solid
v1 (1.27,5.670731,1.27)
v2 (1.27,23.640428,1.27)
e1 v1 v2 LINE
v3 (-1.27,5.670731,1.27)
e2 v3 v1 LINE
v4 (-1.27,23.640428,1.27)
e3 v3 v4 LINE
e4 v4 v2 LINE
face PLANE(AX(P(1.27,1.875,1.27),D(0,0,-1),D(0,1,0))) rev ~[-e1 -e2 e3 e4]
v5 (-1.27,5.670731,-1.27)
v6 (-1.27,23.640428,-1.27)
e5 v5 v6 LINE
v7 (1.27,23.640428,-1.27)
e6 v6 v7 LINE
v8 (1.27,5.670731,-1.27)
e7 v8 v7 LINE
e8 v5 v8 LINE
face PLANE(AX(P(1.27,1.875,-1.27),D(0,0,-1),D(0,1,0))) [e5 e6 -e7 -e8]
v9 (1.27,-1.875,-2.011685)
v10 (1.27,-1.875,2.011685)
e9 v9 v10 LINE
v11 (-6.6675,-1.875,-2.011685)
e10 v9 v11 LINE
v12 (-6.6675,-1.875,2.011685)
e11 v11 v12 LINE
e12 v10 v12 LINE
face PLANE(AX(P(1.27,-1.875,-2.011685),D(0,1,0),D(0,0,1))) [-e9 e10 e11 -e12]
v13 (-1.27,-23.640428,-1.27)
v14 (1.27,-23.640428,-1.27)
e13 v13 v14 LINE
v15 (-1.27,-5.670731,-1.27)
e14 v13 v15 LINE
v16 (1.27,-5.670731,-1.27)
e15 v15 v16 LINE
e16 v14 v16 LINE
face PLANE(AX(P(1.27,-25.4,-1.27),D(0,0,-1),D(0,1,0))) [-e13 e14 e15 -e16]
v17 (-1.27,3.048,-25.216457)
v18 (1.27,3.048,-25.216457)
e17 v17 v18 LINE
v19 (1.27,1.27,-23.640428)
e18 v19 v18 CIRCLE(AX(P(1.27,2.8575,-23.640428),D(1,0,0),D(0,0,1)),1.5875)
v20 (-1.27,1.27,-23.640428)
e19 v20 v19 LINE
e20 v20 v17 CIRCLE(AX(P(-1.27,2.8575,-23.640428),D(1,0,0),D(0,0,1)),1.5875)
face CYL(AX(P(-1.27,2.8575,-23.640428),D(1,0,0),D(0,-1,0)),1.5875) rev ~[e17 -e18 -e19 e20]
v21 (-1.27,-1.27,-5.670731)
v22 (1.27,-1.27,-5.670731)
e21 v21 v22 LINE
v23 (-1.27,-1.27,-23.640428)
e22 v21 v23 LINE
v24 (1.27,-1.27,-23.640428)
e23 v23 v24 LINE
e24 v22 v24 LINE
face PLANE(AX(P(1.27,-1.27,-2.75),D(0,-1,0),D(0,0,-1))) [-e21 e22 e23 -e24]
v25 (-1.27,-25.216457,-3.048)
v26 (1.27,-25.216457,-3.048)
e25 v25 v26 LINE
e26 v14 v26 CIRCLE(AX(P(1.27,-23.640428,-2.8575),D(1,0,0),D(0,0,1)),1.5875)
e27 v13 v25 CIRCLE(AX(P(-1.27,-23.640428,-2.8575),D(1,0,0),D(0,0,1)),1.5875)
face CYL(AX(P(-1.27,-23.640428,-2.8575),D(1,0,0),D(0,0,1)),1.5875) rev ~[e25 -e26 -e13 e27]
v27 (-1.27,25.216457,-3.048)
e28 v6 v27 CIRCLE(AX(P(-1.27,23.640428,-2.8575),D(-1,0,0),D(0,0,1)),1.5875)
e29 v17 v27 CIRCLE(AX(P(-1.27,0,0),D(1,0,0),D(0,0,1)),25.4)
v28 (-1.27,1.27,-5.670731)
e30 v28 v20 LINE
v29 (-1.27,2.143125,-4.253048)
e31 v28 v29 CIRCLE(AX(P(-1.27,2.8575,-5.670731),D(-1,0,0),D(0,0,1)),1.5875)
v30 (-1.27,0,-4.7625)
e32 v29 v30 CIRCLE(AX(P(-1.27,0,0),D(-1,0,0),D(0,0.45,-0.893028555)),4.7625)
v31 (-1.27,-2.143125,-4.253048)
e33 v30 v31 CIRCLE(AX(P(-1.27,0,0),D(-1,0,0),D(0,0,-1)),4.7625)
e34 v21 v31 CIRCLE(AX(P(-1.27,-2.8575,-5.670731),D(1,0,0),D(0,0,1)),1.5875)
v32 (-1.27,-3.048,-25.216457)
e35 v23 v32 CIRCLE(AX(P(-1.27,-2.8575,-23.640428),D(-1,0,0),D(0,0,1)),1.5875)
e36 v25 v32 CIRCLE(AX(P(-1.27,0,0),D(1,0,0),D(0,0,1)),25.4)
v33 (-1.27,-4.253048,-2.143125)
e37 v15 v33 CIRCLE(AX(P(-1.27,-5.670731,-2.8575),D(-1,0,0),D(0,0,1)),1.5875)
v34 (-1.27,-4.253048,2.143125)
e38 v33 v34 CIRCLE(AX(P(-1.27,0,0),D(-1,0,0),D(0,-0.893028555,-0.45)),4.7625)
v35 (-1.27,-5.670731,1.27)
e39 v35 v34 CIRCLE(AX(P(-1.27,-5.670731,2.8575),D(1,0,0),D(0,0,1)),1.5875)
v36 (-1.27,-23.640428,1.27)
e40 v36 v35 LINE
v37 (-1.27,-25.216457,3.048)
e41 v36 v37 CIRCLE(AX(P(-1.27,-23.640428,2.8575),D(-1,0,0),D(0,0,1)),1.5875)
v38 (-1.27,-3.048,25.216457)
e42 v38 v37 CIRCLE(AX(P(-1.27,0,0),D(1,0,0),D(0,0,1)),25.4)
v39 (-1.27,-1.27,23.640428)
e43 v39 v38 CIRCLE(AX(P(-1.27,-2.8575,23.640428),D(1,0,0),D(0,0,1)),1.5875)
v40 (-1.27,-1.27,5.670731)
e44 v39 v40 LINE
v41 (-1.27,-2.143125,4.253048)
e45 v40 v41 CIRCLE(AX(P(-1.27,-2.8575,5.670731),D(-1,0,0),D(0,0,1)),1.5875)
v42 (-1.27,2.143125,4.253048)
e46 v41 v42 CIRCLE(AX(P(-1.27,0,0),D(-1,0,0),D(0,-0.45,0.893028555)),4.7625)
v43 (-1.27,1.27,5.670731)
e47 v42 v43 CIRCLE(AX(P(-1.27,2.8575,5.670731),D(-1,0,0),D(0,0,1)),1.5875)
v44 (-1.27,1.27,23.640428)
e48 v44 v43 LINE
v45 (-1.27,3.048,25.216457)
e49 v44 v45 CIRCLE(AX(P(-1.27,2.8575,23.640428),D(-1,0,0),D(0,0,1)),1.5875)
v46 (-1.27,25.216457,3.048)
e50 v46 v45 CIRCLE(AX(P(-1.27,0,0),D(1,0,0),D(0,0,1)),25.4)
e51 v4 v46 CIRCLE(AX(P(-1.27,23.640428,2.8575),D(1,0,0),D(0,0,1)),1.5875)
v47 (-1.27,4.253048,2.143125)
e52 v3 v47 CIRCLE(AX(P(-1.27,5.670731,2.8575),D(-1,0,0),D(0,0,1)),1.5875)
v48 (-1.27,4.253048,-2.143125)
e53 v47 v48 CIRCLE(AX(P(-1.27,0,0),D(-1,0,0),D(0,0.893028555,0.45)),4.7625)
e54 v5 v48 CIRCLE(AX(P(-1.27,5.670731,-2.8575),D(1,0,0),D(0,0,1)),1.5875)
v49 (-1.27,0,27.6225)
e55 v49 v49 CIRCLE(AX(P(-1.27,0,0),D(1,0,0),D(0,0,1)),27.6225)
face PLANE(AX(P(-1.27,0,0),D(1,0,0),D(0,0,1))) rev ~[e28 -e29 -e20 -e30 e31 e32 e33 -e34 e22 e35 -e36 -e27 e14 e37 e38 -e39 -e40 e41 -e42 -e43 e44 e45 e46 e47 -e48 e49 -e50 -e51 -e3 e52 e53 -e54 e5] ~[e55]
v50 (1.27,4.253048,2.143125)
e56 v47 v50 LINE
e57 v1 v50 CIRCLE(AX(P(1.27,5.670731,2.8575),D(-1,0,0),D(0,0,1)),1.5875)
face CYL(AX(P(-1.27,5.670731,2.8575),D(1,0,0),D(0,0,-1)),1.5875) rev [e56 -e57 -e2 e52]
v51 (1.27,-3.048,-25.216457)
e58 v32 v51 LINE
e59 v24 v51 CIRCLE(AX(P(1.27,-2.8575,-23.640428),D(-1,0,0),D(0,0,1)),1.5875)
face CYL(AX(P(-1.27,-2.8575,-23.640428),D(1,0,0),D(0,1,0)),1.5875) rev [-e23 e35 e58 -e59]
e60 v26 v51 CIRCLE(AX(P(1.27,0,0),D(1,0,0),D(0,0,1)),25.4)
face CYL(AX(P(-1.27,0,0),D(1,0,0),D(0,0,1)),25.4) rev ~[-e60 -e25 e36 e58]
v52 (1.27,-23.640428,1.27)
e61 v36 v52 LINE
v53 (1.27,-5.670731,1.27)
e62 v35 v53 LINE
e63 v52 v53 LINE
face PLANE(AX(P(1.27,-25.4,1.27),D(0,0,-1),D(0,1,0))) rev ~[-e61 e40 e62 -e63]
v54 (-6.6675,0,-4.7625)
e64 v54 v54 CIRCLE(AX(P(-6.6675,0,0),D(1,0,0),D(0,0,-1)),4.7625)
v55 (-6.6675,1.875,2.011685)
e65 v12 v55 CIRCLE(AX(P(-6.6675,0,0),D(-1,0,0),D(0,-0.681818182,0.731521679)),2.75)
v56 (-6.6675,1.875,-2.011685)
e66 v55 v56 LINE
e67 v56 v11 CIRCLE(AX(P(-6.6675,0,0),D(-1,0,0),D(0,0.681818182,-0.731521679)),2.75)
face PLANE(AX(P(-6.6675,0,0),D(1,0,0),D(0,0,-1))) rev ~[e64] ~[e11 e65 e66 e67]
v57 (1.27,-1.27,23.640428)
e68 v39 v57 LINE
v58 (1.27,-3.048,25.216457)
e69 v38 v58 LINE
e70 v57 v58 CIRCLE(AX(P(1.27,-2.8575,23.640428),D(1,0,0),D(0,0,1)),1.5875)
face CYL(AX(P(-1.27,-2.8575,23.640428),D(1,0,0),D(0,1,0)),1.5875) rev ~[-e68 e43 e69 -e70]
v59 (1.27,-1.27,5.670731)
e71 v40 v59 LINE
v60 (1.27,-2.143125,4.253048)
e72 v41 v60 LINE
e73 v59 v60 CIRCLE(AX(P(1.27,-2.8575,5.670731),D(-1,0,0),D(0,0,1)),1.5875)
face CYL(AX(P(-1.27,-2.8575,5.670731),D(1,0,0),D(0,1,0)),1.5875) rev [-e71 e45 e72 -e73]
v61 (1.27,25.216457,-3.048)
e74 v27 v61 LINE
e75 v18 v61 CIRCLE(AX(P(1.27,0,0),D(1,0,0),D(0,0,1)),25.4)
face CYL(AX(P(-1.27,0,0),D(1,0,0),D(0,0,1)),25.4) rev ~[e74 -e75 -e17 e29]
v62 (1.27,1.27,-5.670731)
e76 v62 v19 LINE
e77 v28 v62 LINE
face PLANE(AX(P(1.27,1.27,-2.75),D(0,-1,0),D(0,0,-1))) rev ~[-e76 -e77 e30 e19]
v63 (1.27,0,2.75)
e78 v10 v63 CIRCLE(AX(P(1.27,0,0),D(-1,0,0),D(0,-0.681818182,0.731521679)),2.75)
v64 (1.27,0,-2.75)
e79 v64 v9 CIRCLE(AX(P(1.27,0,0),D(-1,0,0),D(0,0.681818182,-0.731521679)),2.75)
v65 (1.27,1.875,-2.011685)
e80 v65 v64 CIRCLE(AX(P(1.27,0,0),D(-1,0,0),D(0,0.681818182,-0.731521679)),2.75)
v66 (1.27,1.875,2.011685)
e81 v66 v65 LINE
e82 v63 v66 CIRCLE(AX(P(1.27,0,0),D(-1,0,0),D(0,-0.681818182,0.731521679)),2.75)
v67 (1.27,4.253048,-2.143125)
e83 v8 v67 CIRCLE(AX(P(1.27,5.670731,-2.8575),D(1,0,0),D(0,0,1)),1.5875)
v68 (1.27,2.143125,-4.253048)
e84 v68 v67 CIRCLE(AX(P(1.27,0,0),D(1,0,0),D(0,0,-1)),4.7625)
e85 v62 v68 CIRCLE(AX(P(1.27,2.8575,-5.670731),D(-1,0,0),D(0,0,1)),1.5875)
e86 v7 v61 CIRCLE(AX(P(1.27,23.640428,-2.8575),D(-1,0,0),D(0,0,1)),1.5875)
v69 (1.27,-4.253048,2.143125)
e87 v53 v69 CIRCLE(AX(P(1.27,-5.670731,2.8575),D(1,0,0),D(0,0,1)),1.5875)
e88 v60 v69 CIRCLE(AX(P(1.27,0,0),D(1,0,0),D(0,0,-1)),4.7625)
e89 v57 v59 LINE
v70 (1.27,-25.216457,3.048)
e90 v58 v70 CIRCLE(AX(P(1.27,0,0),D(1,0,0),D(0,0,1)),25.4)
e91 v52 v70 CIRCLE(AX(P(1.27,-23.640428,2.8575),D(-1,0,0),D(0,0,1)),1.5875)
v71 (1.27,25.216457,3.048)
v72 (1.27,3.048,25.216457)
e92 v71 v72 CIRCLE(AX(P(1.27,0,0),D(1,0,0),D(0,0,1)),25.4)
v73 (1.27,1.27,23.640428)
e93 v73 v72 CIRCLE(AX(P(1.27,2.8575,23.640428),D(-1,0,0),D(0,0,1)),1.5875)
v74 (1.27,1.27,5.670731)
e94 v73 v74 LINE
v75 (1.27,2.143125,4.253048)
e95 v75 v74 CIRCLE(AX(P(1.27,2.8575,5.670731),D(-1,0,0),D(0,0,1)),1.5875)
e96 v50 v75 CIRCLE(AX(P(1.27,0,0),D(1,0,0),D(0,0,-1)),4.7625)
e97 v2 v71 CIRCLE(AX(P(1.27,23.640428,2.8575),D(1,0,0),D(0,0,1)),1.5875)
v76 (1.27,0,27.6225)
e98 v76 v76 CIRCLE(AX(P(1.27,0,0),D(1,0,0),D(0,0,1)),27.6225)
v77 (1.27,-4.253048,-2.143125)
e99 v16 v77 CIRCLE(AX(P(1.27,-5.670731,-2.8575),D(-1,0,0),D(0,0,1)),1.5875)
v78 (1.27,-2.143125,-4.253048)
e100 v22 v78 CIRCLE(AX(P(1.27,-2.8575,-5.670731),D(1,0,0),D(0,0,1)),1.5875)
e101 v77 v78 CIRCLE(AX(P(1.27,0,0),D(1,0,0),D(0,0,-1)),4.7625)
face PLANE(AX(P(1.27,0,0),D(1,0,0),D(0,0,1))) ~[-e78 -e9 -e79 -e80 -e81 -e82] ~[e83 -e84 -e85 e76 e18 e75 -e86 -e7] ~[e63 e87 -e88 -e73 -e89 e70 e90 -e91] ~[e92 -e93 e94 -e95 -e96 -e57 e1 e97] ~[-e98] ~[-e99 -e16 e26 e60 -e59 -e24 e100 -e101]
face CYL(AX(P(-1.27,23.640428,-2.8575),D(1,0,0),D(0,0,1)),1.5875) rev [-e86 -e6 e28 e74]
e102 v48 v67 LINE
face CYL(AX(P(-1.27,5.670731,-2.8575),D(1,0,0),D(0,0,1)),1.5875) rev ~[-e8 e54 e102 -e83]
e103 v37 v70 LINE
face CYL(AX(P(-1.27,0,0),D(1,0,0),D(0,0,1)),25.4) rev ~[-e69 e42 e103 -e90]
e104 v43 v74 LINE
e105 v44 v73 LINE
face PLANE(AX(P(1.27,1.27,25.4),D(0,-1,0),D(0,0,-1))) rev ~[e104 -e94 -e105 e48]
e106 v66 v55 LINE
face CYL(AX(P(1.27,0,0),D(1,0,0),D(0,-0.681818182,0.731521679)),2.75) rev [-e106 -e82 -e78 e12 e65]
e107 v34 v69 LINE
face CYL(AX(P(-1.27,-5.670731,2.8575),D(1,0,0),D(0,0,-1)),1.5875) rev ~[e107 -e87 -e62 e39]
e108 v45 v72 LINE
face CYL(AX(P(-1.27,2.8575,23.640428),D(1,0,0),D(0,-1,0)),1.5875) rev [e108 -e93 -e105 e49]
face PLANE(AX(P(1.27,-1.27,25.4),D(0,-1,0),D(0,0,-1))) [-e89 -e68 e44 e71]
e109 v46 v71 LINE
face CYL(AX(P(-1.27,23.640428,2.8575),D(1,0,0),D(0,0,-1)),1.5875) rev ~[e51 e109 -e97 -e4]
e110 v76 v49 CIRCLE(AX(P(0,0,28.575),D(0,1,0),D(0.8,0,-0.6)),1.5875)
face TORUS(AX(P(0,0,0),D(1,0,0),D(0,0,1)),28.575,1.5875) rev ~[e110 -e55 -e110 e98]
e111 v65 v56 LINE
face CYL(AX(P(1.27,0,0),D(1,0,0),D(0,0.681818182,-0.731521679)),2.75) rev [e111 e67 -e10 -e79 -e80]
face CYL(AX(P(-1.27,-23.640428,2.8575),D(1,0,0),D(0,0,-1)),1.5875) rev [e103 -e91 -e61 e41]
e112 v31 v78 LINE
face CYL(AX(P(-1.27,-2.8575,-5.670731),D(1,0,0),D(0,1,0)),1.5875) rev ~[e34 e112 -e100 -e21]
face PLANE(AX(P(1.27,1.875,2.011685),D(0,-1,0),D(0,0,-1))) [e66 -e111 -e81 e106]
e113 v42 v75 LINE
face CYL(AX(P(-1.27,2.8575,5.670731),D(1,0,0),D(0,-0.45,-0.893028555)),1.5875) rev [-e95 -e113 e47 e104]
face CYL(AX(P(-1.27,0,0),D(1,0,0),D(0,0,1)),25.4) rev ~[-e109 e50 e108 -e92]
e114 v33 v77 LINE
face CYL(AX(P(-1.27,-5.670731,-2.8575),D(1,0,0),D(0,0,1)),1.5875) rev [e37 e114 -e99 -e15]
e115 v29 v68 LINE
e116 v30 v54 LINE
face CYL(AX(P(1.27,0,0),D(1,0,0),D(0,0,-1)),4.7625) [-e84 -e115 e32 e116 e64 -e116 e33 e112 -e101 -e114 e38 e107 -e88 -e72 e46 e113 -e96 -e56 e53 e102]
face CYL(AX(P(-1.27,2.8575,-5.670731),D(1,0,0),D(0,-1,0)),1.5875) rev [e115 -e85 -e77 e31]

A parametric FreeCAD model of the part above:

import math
import FreeCAD as App
import Part
import Sketcher

V = App.Vector
Q = App.Units.Quantity


def edges_at(feature, points):
    """Names of the edges that pass closest to the given points."""
    edges = feature.Shape.Edges
    near = lambda p: min(range(len(edges)), key=lambda i: edges[i].distToShape(Part.Vertex(*p))[0])
    return sorted({f"Edge{near(p) + 1}" for p in points})

doc = App.newDocument("Part")
body = doc.addObject("PartDesign::Body", "Body")

sketch1 = body.newObject("Sketcher::SketchObject", "Sketch")
sketch1.AttachmentSupport = (doc.getObject("XY_Plane"), [""])
sketch1.MapMode = "FlatFace"
sketch1.addGeometry(Part.LineSegment(V(-1.27, 25.4, 0), V(1.27, 25.4, 0)), False)
sketch1.addGeometry(Part.LineSegment(V(1.27, 25.4, 0), V(1.27, 27.6225, 0)), False)
sketch1.addGeometry(Part.ArcOfCircle(Part.Circle(V(0, 28.575, 0), V(0, 0, 1), 1.5875), math.radians(-143.130102), math.radians(-36.869898)), False)
sketch1.addGeometry(Part.LineSegment(V(-1.27, 27.6225, 0), V(-1.27, 25.4, 0)), False)
sketch1.addConstraint(Sketcher.Constraint("Coincident", 0, 2, 1, 1))
sketch1.addConstraint(Sketcher.Constraint("Coincident", 1, 2, 2, 2))
sketch1.addConstraint(Sketcher.Constraint("Coincident", 2, 1, 3, 1))
sketch1.addConstraint(Sketcher.Constraint("Coincident", 3, 2, 0, 1))
sketch1.addConstraint(Sketcher.Constraint("Horizontal", 0))
sketch1.addConstraint(Sketcher.Constraint("Vertical", 1))
sketch1.addConstraint(Sketcher.Constraint("Vertical", 3))
sketch1.addConstraint(Sketcher.Constraint("Symmetric", 1, 2, 2, 1, -2))
sketch1.addConstraint(Sketcher.Constraint("DistanceX", 0, 1, 0, 2, Q("0.1 in")))
sketch1.addConstraint(Sketcher.Constraint("DistanceY", -1, 1, 0, 2, Q("1 in")))
sketch1.addConstraint(Sketcher.Constraint("Radius", 2, Q("0.0625 in")))
sketch1.addConstraint(Sketcher.Constraint("DistanceY", 1, 1, 1, 2, Q("0.0875 in")))
revolution = body.newObject("PartDesign::Revolution", "Revolution")
revolution.Profile = sketch1
revolution.ReferenceAxis = (sketch1, ["H_Axis"])
revolution.Angle = 360
body2 = doc.addObject("PartDesign::Body", "Body001")

sketch2 = body2.newObject("Sketcher::SketchObject", "Sketch001")
sketch2.AttachmentSupport = (doc.getObject("YZ_Plane001"), [""])
sketch2.MapMode = "FlatFace"
sketch2.AttachmentOffset = App.Placement(V(0, 0, 0.05 * 25.4), App.Rotation())
sketch2.addGeometry(Part.Circle(V(0, 0, 0), V(0, 0, 1), 4.7625), False)
sketch2.addGeometry(Part.ArcOfCircle(Part.Circle(V(0, 0, 0), V(0, 0, 1), 2.75), math.radians(47.014114), math.radians(132.985886)), False)
sketch2.addGeometry(Part.LineSegment(V(1.875, 2.011685, 0), V(1.875, -2.011685, 0)), False)
sketch2.addGeometry(Part.ArcOfCircle(Part.Circle(V(0, 0, 0), V(0, 0, 1), 2.75), math.radians(-132.985886), math.radians(-47.014114)), False)
sketch2.addGeometry(Part.LineSegment(V(-1.875, -2.011685, 0), V(-1.875, 2.011685, 0)), False)
sketch2.addConstraint(Sketcher.Constraint("Coincident", 1, 1, 2, 1))
sketch2.addConstraint(Sketcher.Constraint("Coincident", 2, 2, 3, 2))
sketch2.addConstraint(Sketcher.Constraint("Coincident", 3, 1, 4, 1))
sketch2.addConstraint(Sketcher.Constraint("Coincident", 4, 2, 1, 2))
sketch2.addConstraint(Sketcher.Constraint("Vertical", 2))
sketch2.addConstraint(Sketcher.Constraint("Vertical", 4))
sketch2.addConstraint(Sketcher.Constraint("Coincident", 0, 3, -1, 1))
sketch2.addConstraint(Sketcher.Constraint("Coincident", 1, 3, -1, 1))
sketch2.addConstraint(Sketcher.Constraint("Coincident", 3, 3, -1, 1))
sketch2.addConstraint(Sketcher.Constraint("Equal", 1, 3))
sketch2.addConstraint(Sketcher.Constraint("Horizontal", 2, 2, 3, 1))
sketch2.addConstraint(Sketcher.Constraint("Diameter", 0, Q("0.375 in")))
sketch2.addConstraint(Sketcher.Constraint("Radius", 1, 2.75))
sketch2.addConstraint(Sketcher.Constraint("DistanceY", -1, 1, 1, 1, Q("0.0792002 in")))
pad1 = body2.newObject("PartDesign::Pad", "Pad")
pad1.Profile = sketch2
pad1.Length = Q("0.3125 in")
pad1.Reversed = True
body.AllowCompound = True
doc.recompute()

boolean = body.newObject("PartDesign::Boolean", "Boolean")
boolean.Type = "Fuse"
boolean.addObjects([body2])

sketch3 = body.newObject("Sketcher::SketchObject", "Sketch002")
sketch3.AttachmentSupport = (doc.getObject("YZ_Plane"), [""])
sketch3.MapMode = "FlatFace"
sketch3.AttachmentOffset = App.Placement(V(0, 0, 0.05 * 25.4), App.Rotation())
sketch3.addGeometry(Part.LineSegment(V(1.27, 25.4, 0), V(-1.27, 25.4, 0)), False)
sketch3.addGeometry(Part.LineSegment(V(-1.27, 25.4, 0), V(-1.27, 2.75, 0)), False)
sketch3.addGeometry(Part.LineSegment(V(-1.27, 2.75, 0), V(1.27, 2.75, 0)), False)
sketch3.addGeometry(Part.LineSegment(V(1.27, 2.75, 0), V(1.27, 25.4, 0)), False)
sketch3.addGeometry(Part.LineSegment(V(25.4, 1.27, 0), V(1.875, 1.27, 0)), False)
sketch3.addGeometry(Part.LineSegment(V(1.875, 1.27, 0), V(1.875, -1.27, 0)), False)
sketch3.addGeometry(Part.LineSegment(V(1.875, -1.27, 0), V(25.4, -1.27, 0)), False)
sketch3.addGeometry(Part.LineSegment(V(25.4, -1.27, 0), V(25.4, 1.27, 0)), False)
sketch3.addGeometry(Part.LineSegment(V(1.27, -2.75, 0), V(-1.27, -2.75, 0)), False)
sketch3.addGeometry(Part.LineSegment(V(-1.27, -2.75, 0), V(-1.27, -25.4, 0)), False)
sketch3.addGeometry(Part.LineSegment(V(-1.27, -25.4, 0), V(1.27, -25.4, 0)), False)
sketch3.addGeometry(Part.LineSegment(V(1.27, -25.4, 0), V(1.27, -2.75, 0)), False)
sketch3.addGeometry(Part.LineSegment(V(-1.875, 1.27, 0), V(-25.4, 1.27, 0)), False)
sketch3.addGeometry(Part.LineSegment(V(-25.4, 1.27, 0), V(-25.4, -1.27, 0)), False)
sketch3.addGeometry(Part.LineSegment(V(-25.4, -1.27, 0), V(-1.875, -1.27, 0)), False)
sketch3.addGeometry(Part.LineSegment(V(-1.875, -1.27, 0), V(-1.875, 1.27, 0)), False)
sketch3.addConstraint(Sketcher.Constraint("Coincident", 0, 2, 1, 1))
sketch3.addConstraint(Sketcher.Constraint("Coincident", 1, 2, 2, 1))
sketch3.addConstraint(Sketcher.Constraint("Coincident", 2, 2, 3, 1))
sketch3.addConstraint(Sketcher.Constraint("Coincident", 3, 2, 0, 1))
sketch3.addConstraint(Sketcher.Constraint("Coincident", 4, 2, 5, 1))
sketch3.addConstraint(Sketcher.Constraint("Coincident", 5, 2, 6, 1))
sketch3.addConstraint(Sketcher.Constraint("Coincident", 6, 2, 7, 1))
sketch3.addConstraint(Sketcher.Constraint("Coincident", 7, 2, 4, 1))
sketch3.addConstraint(Sketcher.Constraint("Coincident", 8, 2, 9, 1))
sketch3.addConstraint(Sketcher.Constraint("Coincident", 9, 2, 10, 1))
sketch3.addConstraint(Sketcher.Constraint("Coincident", 10, 2, 11, 1))
sketch3.addConstraint(Sketcher.Constraint("Coincident", 11, 2, 8, 1))
sketch3.addConstraint(Sketcher.Constraint("Coincident", 12, 2, 13, 1))
sketch3.addConstraint(Sketcher.Constraint("Coincident", 13, 2, 14, 1))
sketch3.addConstraint(Sketcher.Constraint("Coincident", 14, 2, 15, 1))
sketch3.addConstraint(Sketcher.Constraint("Coincident", 15, 2, 12, 1))
sketch3.addConstraint(Sketcher.Constraint("Horizontal", 0))
sketch3.addConstraint(Sketcher.Constraint("Vertical", 1))
sketch3.addConstraint(Sketcher.Constraint("Horizontal", 2))
sketch3.addConstraint(Sketcher.Constraint("Vertical", 3))
sketch3.addConstraint(Sketcher.Constraint("Horizontal", 4))
sketch3.addConstraint(Sketcher.Constraint("Vertical", 5))
sketch3.addConstraint(Sketcher.Constraint("Horizontal", 6))
sketch3.addConstraint(Sketcher.Constraint("Vertical", 7))
sketch3.addConstraint(Sketcher.Constraint("Horizontal", 8))
sketch3.addConstraint(Sketcher.Constraint("Vertical", 9))
sketch3.addConstraint(Sketcher.Constraint("Horizontal", 10))
sketch3.addConstraint(Sketcher.Constraint("Vertical", 11))
sketch3.addConstraint(Sketcher.Constraint("Horizontal", 12))
sketch3.addConstraint(Sketcher.Constraint("Vertical", 13))
sketch3.addConstraint(Sketcher.Constraint("Horizontal", 14))
sketch3.addConstraint(Sketcher.Constraint("Vertical", 15))
sketch3.addConstraint(Sketcher.Constraint("Symmetric", 2, 2, 8, 2, -1, 1))
sketch3.addConstraint(Sketcher.Constraint("Symmetric", 0, 2, 10, 2, -1, 1))
sketch3.addConstraint(Sketcher.Constraint("Symmetric", 6, 2, 12, 2, -1, 1))
sketch3.addConstraint(Sketcher.Constraint("Symmetric", 4, 2, 14, 2, -1, 1))
sketch3.addConstraint(Sketcher.Constraint("Horizontal", 7, 2, 12, 2))
sketch3.addConstraint(Sketcher.Constraint("Vertical", 1, 2, 8, 2))
sketch3.addConstraint(Sketcher.Constraint("Equal", 10, 5))
sketch3.addConstraint(Sketcher.Constraint("DistanceX", 0, 2, 0, 1, Q("0.1 in")))
sketch3.addConstraint(Sketcher.Constraint("DistanceY", -1, 1, 0, 2, Q("1 in")))
sketch3.addConstraint(Sketcher.Constraint("DistanceX", -1, 1, 6, 2, Q("1 in")))
sketch3.addConstraint(Sketcher.Constraint("DistanceX", 4, 2, 4, 1, 23.525))
sketch3.addConstraint(Sketcher.Constraint("DistanceY", 1, 2, 1, 1, 22.65))
pad2 = body.newObject("PartDesign::Pad", "Pad001")
pad2.Profile = sketch3
pad2.Length = Q("0.1 in")
pad2.Reversed = True
doc.recompute()

fillet = body.newObject("PartDesign::Fillet", "Fillet")
fillet.Base = (pad2, edges_at(pad2, [
    (0, -1.27, -4.59),
    (0, -1.27, -25.368),
    (0, 1.27, 25.368),
    (0, -1.27, 25.368),
    (0, -4.59, -1.27),
    (0, -25.368, -1.27),
    (0, -4.59, 1.27),
    (0, -25.368, 1.27),
    (0, 1.27, 4.59),
    (0, -1.27, 4.59),
    (0, 25.368, 1.27),
    (0, 4.59, 1.27),
    (0, 4.59, -1.27),
    (0, 25.368, -1.27),
    (0, 1.27, -4.59),
    (0, 1.27, -25.368),
]))
fillet.Radius = Q("0.0625 in")

doc.recompute()
